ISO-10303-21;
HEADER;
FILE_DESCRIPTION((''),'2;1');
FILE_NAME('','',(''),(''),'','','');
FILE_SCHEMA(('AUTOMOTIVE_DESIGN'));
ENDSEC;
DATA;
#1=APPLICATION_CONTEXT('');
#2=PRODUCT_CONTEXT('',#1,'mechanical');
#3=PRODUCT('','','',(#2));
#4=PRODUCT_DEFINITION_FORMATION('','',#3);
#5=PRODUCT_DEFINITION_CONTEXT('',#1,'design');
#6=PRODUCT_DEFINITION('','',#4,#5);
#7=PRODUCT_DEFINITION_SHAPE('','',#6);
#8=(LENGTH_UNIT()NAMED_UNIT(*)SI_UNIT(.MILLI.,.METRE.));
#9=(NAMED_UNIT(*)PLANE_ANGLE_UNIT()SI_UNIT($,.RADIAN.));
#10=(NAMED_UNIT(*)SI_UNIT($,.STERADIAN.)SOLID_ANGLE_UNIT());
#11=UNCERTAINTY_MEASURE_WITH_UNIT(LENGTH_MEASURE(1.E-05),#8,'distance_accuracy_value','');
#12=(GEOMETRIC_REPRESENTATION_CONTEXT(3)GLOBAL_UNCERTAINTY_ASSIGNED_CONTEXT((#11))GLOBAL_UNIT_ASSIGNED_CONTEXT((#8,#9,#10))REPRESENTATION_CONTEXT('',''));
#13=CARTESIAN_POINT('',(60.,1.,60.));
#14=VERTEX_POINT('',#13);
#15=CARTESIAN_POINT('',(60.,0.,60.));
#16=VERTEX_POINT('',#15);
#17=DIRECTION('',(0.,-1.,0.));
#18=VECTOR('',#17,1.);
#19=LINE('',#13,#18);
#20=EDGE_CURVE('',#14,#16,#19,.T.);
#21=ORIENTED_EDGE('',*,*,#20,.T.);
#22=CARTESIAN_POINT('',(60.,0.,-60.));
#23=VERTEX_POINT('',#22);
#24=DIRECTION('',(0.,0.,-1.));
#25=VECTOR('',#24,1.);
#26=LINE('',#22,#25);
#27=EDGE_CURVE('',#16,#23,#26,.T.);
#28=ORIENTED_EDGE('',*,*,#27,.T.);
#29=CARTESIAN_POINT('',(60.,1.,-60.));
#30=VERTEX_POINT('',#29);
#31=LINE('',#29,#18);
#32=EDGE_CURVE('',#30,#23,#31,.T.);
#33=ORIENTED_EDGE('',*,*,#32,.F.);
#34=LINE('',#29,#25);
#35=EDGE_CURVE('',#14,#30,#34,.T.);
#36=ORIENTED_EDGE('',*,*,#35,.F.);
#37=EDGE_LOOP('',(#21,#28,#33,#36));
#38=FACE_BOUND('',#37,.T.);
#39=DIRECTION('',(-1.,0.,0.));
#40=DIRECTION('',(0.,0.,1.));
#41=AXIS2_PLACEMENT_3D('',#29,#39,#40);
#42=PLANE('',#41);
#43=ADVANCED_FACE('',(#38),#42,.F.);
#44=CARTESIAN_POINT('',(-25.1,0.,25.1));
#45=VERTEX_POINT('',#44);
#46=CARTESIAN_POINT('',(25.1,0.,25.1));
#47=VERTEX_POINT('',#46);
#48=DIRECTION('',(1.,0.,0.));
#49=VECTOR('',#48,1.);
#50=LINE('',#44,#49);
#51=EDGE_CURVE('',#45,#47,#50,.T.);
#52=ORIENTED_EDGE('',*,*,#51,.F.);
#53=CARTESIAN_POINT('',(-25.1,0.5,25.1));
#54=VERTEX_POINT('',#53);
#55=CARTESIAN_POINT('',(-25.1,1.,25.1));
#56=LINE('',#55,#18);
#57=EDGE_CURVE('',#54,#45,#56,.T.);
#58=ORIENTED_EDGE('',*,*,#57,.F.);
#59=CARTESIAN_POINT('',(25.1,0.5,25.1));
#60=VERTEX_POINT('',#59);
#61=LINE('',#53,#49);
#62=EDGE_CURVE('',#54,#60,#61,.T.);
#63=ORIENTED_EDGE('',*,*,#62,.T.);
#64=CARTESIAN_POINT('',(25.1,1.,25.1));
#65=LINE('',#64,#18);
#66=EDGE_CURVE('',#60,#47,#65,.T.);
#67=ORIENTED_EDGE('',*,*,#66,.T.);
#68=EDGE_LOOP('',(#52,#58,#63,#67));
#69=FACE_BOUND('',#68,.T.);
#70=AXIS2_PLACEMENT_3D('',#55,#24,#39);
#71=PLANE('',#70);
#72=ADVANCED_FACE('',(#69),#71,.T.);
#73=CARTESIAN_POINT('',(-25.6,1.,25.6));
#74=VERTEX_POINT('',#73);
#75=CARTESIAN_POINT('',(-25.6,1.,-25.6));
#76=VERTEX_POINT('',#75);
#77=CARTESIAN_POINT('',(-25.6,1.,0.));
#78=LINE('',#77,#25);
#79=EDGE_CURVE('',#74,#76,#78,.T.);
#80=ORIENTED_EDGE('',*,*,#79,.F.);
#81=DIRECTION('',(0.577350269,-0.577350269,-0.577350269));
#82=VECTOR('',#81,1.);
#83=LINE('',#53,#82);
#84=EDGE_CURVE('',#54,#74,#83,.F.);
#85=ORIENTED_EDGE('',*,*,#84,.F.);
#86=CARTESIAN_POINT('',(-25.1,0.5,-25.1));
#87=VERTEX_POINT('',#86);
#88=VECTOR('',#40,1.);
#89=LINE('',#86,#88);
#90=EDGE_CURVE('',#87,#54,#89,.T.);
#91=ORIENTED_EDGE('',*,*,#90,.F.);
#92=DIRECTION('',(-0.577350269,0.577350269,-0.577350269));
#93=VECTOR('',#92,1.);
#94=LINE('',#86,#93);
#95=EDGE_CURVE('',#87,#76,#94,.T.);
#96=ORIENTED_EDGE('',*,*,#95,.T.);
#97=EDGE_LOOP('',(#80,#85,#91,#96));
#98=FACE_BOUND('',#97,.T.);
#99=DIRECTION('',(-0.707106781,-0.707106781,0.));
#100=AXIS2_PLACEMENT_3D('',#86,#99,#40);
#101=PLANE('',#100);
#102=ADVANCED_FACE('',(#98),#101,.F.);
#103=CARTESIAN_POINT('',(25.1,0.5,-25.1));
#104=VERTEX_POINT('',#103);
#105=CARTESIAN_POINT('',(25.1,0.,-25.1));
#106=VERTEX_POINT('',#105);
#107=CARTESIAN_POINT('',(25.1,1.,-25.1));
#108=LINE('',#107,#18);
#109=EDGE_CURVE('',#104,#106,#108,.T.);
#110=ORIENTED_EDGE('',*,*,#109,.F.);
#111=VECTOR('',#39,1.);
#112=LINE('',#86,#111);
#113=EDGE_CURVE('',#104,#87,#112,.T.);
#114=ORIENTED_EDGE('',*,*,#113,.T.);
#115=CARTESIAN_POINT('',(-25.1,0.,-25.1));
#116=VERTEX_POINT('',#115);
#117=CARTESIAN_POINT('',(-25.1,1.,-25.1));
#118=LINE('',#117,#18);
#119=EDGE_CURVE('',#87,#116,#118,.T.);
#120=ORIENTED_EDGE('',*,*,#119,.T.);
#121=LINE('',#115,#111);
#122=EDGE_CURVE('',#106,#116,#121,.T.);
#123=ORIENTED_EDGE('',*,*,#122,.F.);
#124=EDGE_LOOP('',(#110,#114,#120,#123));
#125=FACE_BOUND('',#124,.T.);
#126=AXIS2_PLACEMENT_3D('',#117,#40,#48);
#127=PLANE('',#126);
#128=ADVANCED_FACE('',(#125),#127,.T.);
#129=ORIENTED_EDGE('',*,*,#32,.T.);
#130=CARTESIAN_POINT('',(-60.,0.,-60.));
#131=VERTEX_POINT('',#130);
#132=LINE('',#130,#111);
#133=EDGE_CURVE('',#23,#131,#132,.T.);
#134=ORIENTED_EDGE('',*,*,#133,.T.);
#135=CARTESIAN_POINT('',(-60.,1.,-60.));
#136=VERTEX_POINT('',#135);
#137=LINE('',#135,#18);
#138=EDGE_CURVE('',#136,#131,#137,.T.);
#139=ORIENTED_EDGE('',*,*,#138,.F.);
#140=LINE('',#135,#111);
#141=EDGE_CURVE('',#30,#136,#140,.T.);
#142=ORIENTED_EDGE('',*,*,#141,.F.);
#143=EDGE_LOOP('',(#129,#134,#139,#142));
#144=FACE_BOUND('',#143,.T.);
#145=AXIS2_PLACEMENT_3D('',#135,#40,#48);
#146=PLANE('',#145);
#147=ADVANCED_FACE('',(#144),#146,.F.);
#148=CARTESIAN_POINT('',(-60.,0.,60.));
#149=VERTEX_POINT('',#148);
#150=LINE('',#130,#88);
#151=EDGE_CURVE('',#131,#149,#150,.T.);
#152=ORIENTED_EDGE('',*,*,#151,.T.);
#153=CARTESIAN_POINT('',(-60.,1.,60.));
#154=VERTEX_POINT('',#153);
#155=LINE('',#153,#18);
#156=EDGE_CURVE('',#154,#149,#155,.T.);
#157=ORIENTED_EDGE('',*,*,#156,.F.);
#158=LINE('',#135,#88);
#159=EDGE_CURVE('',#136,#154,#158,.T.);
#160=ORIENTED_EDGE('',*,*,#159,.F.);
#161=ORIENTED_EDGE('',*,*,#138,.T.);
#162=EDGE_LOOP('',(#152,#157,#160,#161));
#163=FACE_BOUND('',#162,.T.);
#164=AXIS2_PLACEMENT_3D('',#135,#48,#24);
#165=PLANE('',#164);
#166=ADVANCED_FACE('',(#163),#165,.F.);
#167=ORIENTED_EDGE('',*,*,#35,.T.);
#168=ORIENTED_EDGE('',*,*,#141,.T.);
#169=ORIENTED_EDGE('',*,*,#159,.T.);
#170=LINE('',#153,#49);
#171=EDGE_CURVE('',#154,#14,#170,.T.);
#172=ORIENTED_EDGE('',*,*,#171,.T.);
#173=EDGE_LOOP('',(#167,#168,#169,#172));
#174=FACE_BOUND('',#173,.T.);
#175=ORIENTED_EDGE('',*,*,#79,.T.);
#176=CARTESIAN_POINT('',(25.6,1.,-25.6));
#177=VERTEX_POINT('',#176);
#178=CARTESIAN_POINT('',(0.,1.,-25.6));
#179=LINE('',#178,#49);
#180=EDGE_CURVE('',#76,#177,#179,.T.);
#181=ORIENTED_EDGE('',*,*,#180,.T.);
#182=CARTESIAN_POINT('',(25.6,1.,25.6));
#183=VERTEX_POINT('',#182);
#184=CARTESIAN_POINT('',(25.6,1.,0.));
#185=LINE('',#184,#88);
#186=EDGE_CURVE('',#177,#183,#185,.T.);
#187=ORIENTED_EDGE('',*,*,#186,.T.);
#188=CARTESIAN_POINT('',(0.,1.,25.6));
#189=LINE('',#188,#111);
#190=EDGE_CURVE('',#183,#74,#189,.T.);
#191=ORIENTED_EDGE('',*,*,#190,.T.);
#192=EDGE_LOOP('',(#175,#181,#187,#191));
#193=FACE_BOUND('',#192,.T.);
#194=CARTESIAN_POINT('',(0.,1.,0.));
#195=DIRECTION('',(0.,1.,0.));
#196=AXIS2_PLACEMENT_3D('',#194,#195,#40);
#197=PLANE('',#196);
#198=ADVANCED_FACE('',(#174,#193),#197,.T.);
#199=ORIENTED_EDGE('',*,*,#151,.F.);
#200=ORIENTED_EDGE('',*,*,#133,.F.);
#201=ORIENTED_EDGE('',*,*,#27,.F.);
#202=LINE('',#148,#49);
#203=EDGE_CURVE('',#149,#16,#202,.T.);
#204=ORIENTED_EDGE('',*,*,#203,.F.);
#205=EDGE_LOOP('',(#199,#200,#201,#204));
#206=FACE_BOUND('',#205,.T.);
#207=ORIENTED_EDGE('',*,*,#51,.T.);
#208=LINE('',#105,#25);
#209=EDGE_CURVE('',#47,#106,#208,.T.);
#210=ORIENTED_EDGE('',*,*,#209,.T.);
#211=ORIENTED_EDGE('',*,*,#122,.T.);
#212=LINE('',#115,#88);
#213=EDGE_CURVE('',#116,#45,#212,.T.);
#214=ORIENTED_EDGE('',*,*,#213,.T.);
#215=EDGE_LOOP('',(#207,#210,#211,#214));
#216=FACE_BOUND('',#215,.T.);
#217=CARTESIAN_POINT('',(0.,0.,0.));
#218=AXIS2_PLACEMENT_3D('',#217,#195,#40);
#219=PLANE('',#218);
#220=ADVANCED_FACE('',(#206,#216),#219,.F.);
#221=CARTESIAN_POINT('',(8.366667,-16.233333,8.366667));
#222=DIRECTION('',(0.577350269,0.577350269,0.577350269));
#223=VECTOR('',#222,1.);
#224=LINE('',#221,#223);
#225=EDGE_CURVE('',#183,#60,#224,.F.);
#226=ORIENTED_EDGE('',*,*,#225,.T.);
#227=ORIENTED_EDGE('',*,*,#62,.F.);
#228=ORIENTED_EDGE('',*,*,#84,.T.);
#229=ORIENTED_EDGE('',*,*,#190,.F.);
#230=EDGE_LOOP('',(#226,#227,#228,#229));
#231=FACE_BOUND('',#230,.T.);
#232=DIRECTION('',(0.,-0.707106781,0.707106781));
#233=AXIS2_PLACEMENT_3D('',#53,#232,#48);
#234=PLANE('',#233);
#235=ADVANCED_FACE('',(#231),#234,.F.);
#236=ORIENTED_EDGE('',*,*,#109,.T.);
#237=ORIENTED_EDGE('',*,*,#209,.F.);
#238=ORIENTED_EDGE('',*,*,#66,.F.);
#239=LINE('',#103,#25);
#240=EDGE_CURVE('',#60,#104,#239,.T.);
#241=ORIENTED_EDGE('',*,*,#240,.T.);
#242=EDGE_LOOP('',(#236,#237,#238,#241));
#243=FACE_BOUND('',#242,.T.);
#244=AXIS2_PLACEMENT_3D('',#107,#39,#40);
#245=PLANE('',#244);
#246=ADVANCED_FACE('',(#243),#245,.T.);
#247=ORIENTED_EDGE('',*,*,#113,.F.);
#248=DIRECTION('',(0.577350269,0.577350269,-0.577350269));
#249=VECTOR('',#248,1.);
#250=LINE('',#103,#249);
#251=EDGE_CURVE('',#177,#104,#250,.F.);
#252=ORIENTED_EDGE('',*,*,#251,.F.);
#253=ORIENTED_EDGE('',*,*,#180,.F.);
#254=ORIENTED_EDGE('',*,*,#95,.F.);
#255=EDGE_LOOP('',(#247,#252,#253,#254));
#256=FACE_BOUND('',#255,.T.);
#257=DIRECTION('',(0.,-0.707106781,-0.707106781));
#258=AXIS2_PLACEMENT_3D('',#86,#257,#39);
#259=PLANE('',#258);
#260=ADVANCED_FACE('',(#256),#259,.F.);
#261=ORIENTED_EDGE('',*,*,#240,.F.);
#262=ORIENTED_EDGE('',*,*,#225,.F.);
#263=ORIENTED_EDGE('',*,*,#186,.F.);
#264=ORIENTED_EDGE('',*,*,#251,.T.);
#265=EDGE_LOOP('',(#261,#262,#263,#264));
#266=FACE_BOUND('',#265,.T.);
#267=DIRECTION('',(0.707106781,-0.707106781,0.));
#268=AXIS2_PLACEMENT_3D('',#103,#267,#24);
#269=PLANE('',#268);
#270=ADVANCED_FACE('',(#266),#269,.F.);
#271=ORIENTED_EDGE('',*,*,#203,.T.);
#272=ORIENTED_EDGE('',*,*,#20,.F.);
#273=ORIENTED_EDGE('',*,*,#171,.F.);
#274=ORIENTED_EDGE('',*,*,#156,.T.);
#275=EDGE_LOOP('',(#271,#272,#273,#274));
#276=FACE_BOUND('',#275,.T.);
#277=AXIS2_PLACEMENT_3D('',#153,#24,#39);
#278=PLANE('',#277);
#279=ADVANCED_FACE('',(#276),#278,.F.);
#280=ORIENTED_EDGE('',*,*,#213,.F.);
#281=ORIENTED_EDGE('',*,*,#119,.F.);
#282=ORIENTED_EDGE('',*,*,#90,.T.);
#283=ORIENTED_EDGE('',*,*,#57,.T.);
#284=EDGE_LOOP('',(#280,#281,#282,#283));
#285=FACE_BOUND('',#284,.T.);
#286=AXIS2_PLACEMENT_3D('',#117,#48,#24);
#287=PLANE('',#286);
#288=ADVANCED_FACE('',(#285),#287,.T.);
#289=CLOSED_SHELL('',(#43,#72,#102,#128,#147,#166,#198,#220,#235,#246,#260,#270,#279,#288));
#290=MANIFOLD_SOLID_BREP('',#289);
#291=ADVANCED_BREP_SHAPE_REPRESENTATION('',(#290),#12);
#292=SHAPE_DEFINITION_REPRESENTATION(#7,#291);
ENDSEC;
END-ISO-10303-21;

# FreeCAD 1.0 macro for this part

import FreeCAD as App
import Part
import Sketcher

V = App.Vector


def edges_at(feature, points):
    """Names of the edges that pass closest to the given points."""
    edges = feature.Shape.Edges
    near = lambda p: min(range(len(edges)), key=lambda i: edges[i].distToShape(Part.Vertex(*p))[0])
    return sorted({f"Edge{near(p) + 1}" for p in points})

doc = App.newDocument("Part")
body = doc.addObject("PartDesign::Body", "Body")

# Sketch on XZ plane
sketch1 = body.newObject("Sketcher::SketchObject", "Sketch")
sketch1.AttachmentSupport = (doc.getObject("XZ_Plane"), [""])
sketch1.MapMode = "FlatFace"
sketch1.addGeometry([
    Part.LineSegment(V(-60, -60, 0), V(-60, 60, 0)),  # 0
    Part.LineSegment(V(-60, 60, 0), V(60, 60, 0)),  # 1
    Part.LineSegment(V(60, 60, 0), V(60, -60, 0)),  # 2
    Part.LineSegment(V(60, -60, 0), V(-60, -60, 0)),  # 3
    Part.LineSegment(V(25, 25, 0), V(-25, 25, 0)),  # 4
    Part.LineSegment(V(-25, 25, 0), V(-25, -25, 0)),  # 5
    Part.LineSegment(V(-25, -25, 0), V(25, -25, 0)),  # 6
    Part.LineSegment(V(25, -25, 0), V(25, 25, 0)),  # 7
], False)
sketch1.addConstraint([
    Sketcher.Constraint("Coincident", 0, 2, 1, 1),
    Sketcher.Constraint("Coincident", 1, 2, 2, 1),
    Sketcher.Constraint("Coincident", 2, 2, 3, 1),
    Sketcher.Constraint("Coincident", 3, 2, 0, 1),
    Sketcher.Constraint("Coincident", 4, 2, 5, 1),
    Sketcher.Constraint("Coincident", 5, 2, 6, 1),
    Sketcher.Constraint("Coincident", 6, 2, 7, 1),
    Sketcher.Constraint("Coincident", 7, 2, 4, 1),
    Sketcher.Constraint("Vertical", 0),
    Sketcher.Constraint("Horizontal", 1),
    Sketcher.Constraint("Vertical", 2),
    Sketcher.Constraint("Horizontal", 3),
    Sketcher.Constraint("Horizontal", 4),
    Sketcher.Constraint("Vertical", 5),
    Sketcher.Constraint("Horizontal", 6),
    Sketcher.Constraint("Vertical", 7),
    Sketcher.Constraint("Symmetric", 0, 2, 2, 2, -1, 1),
    Sketcher.Constraint("Symmetric", 4, 2, 6, 2, -1, 1),
    Sketcher.Constraint("Equal", 3, 0),
    Sketcher.Constraint("Equal", 6, 5),
    Sketcher.Constraint("DistanceX", 1, 1, 1, 2, 120.0),
    Sketcher.Constraint("DistanceX", 4, 2, 4, 1, 50.2),
])
pad1 = body.newObject("PartDesign::Pad", "Pad")
pad1.Profile = sketch1
pad1.Length = 1
pad1.Reversed = True
doc.recompute()

chamfer = body.newObject("PartDesign::Chamfer", "Chamfer")
chamfer.Base = (pad1, edges_at(pad1, [
    (25.1, 1, 0),
    (0, 1, -25.1),
    (-25.1, 1, 0),
    (0, 1, 25.1),
]))
chamfer.Size = 0.5

doc.recompute()
